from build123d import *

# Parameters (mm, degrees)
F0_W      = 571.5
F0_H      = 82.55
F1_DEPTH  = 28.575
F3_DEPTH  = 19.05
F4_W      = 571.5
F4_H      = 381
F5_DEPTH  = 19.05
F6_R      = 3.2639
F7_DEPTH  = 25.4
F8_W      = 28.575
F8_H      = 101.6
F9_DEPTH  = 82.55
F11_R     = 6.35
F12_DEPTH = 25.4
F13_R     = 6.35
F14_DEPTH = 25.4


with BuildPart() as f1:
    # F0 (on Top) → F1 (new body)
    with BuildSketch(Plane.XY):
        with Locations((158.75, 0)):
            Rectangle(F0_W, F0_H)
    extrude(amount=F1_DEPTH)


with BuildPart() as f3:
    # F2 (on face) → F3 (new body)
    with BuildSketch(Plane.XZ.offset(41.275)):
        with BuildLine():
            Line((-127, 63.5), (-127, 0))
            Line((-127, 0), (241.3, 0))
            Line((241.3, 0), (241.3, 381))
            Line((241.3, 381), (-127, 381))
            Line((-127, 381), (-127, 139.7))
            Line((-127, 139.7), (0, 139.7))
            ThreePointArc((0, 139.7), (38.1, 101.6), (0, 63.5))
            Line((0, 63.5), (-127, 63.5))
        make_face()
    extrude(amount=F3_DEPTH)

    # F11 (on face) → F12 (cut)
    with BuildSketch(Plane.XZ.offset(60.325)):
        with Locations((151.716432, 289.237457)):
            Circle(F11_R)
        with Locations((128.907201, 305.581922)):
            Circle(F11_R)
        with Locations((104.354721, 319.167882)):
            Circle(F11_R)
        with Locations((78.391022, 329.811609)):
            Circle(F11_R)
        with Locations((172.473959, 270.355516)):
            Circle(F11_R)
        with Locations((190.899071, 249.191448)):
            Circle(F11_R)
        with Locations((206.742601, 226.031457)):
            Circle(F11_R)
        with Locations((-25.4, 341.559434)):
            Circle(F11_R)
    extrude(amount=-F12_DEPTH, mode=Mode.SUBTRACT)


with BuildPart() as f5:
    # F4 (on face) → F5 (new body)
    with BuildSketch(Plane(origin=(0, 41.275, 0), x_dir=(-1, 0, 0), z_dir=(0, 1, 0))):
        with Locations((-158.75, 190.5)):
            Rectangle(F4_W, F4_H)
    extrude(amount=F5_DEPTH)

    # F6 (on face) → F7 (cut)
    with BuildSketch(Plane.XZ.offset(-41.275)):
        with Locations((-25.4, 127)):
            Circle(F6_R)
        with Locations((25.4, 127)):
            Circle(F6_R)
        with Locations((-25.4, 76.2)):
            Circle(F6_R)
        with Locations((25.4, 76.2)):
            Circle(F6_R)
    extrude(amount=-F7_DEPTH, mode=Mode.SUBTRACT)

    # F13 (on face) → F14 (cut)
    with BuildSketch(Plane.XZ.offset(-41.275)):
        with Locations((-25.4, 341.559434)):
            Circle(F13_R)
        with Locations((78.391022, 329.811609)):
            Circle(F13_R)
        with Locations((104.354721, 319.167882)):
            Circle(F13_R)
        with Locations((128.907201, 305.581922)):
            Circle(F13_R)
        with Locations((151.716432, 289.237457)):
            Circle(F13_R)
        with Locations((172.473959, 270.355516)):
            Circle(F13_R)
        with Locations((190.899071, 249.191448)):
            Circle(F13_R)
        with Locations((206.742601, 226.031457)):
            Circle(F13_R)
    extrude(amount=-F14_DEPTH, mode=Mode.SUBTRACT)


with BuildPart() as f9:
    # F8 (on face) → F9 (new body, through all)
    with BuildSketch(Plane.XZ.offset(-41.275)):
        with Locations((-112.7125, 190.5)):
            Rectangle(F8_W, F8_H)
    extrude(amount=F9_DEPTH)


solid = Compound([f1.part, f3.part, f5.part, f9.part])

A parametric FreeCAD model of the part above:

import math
import FreeCAD as App
import Part
import Sketcher

V = App.Vector
Q = App.Units.Quantity

doc = App.newDocument("Part")
params = doc.addObject("Spreadsheet::Sheet", "Params")
for row, (alias, value) in enumerate([
    ("sketch1_width", "22.5 in"),
    ("sketch1_height", "3.25 in"),
    ("pad1_length", "1.125 in"),
    ("sketch2_radius", "1.5 in"),
    ("sketch2_width", "5 in"),
    ("sketch2_height", "15 in"),
    ("sketch2_width2", "14.5 in"),
    ("sketch2_height2", "2.5 in"),
    ("pad2_length", "0.75 in"),
    ("sketch3_diameter", "0.5 in"),
    ("pocket1_length", "1 in"),
    ("sketch4_height", "15 in"),
    ("sketch4_width", "22.5 in"),
    ("pad3_length", "0.75 in"),
    ("sketch5_diameter", "0.257 in"),
    ("pocket2_length", "1 in"),
    ("sketch6_diameter", "0.5 in"),
    ("pocket3_length", "1 in"),
    ("sketch7_height", "4 in"),
    ("sketch7_width", "1.125 in"),
    ("pad4_length", "3.25 in"),
], start=1):
    params.set(f"A{row}", alias)
    params.set(f"B{row}", "=" + value)
    params.setAlias(f"B{row}", alias)

body = doc.addObject("PartDesign::Body", "Body")

# Sketch on XY plane
sketch1 = body.newObject("Sketcher::SketchObject", "Sketch")
sketch1.AttachmentSupport = (doc.getObject("XY_Plane"), [""])
sketch1.MapMode = "FlatFace"
sketch1.addGeometry([
    Part.LineSegment(V(-127, 41, 0), V(-127, -41, 0)),
    Part.LineSegment(V(-127, -41, 0), V(444, -41, 0)),
    Part.LineSegment(V(444, -41, 0), V(444, 41, 0)),
    Part.LineSegment(V(444, 41, 0), V(-127, 41, 0)),
], False)
sketch1.addConstraint([
    Sketcher.Constraint("Coincident", 0, 2, 1, 1),
    Sketcher.Constraint("Coincident", 1, 2, 2, 1),
    Sketcher.Constraint("Coincident", 2, 2, 3, 1),
    Sketcher.Constraint("Coincident", 3, 2, 0, 1),
    Sketcher.Constraint("Vertical", 0),
    Sketcher.Constraint("Horizontal", 1),
    Sketcher.Constraint("Vertical", 2),
    Sketcher.Constraint("Horizontal", 3),
    Sketcher.Constraint("DistanceX", 1, 1, 1, 2, Q("22.5 in")),
    Sketcher.Constraint("DistanceX", 0, 2, -1, 1, Q("5 in")),
    Sketcher.Constraint("DistanceY", 0, 2, 0, 1, Q("3.25 in")),
    Sketcher.Constraint("DistanceY", 0, 2, -1, 1, Q("1.625 in")),
])
sketch1.setExpression("Constraints[8]", "Params.sketch1_width")
sketch1.setExpression("Constraints[10]", "Params.sketch1_height")
pad1 = body.newObject("PartDesign::Pad", "Pad")
pad1.Profile = sketch1
pad1.setExpression("Length", "Params.pad1_length")
body2 = doc.addObject("PartDesign::Body", "Body001")

# Sketch on XZ plane
sketch2 = body2.newObject("Sketcher::SketchObject", "Sketch001")
sketch2.AttachmentSupport = (doc.getObject("XZ_Plane001"), [""])
sketch2.MapMode = "FlatFace"
sketch2.AttachmentOffset = App.Placement(V(0, 0, 1.625 * 25.4), App.Rotation())
sketch2.addGeometry([
    Part.LineSegment(V(-127, 64, 0), V(-127, 0, 0)),  # 0
    Part.LineSegment(V(-127, 0, 0), V(241, 0, 0)),  # 1
    Part.LineSegment(V(241, 0, 0), V(241, 381, 0)),  # 2
    Part.LineSegment(V(241, 381, 0), V(-127, 381, 0)),  # 3
    Part.LineSegment(V(-127, 381, 0), V(-127, 140, 0)),  # 4
    Part.LineSegment(V(-127, 140, 0), V(0, 140, 0)),  # 5
    Part.ArcOfCircle(Part.Circle(V(0, 102, 0), V(0, 0, 1), 38), math.radians(-90), math.radians(90)),  # 6
    Part.LineSegment(V(0, 64, 0), V(-127, 64, 0)),  # 7
], False)
sketch2.addConstraint([
    Sketcher.Constraint("Coincident", 0, 2, 1, 1),
    Sketcher.Constraint("Coincident", 1, 2, 2, 1),
    Sketcher.Constraint("Coincident", 2, 2, 3, 1),
    Sketcher.Constraint("Coincident", 3, 2, 4, 1),
    Sketcher.Constraint("Coincident", 4, 2, 5, 1),
    Sketcher.Constraint("Tangent", 5, 2, 6, 2),
    Sketcher.Constraint("Tangent", 6, 1, 7, 1),
    Sketcher.Constraint("Coincident", 7, 2, 0, 1),
    Sketcher.Constraint("Vertical", 0),
    Sketcher.Constraint("Horizontal", 1),
    Sketcher.Constraint("Vertical", 2),
    Sketcher.Constraint("Horizontal", 3),
    Sketcher.Constraint("Vertical", 4),
    Sketcher.Constraint("Horizontal", 5),
    Sketcher.Constraint("Horizontal", 7),
    Sketcher.Constraint("PointOnObject", 6, 3, -2),
    Sketcher.Constraint("PointOnObject", 0, 2, -1),
    Sketcher.Constraint("Vertical", 0, 2, 3, 2),
    Sketcher.Constraint("Radius", 6, Q("1.5 in")),
    Sketcher.Constraint("DistanceX", 5, 1, 5, 2, Q("5 in")),
    Sketcher.Constraint("DistanceY", 2, 1, 2, 2, Q("15 in")),
    Sketcher.Constraint("DistanceX", 1, 1, 1, 2, Q("14.5 in")),
    Sketcher.Constraint("DistanceY", 0, 2, 0, 1, Q("2.5 in")),
])
sketch2.setExpression("Constraints[18]", "Params.sketch2_radius")
sketch2.setExpression("Constraints[19]", "Params.sketch2_width")
sketch2.setExpression("Constraints[20]", "Params.sketch2_height")
sketch2.setExpression("Constraints[21]", "Params.sketch2_width2")
sketch2.setExpression("Constraints[22]", "Params.sketch2_height2")
pad2 = body2.newObject("PartDesign::Pad", "Pad001")
pad2.Profile = sketch2
pad2.setExpression("Length", "Params.pad2_length")

# Sketch on XZ plane
sketch3 = body2.newObject("Sketcher::SketchObject", "Sketch002")
sketch3.AttachmentSupport = (doc.getObject("XZ_Plane001"), [""])
sketch3.MapMode = "FlatFace"
sketch3.AttachmentOffset = App.Placement(V(0, 0, 2.375 * 25.4), App.Rotation())
sketch3.addGeometry([
    Part.Circle(V(152, 289, 0), V(0, 0, 1), 6),  # 0
    Part.Circle(V(129, 306, 0), V(0, 0, 1), 6),  # 1
    Part.Circle(V(104, 319, 0), V(0, 0, 1), 6),  # 2
    Part.Circle(V(78, 330, 0), V(0, 0, 1), 6),  # 3
    Part.Circle(V(172, 270, 0), V(0, 0, 1), 6),  # 4
    Part.Circle(V(191, 249, 0), V(0, 0, 1), 6),  # 5
    Part.Circle(V(207, 226, 0), V(0, 0, 1), 6),  # 6
    Part.Circle(V(-25, 342, 0), V(0, 0, 1), 6),  # 7
], False)
sketch3.addConstraint([
    Sketcher.Constraint("Equal", 0, 1),
    Sketcher.Constraint("Equal", 1, 2),
    Sketcher.Constraint("Equal", 2, 3),
    Sketcher.Constraint("Equal", 3, 4),
    Sketcher.Constraint("Equal", 4, 5),
    Sketcher.Constraint("Equal", 5, 6),
    Sketcher.Constraint("Equal", 6, 7),
    Sketcher.Constraint("Diameter", 0, Q("0.5 in")),
    Sketcher.Constraint("DistanceX", 7, 3, -1, 1, Q("1 in")),
    Sketcher.Constraint("DistanceX", -1, 1, 1, 3, Q("128.907201 mm")),
    Sketcher.Constraint("DistanceX", -1, 1, 6, 3, Q("206.742601 mm")),
    Sketcher.Constraint("DistanceX", 3, 3, 2, 3, Q("25.963699 mm")),
    Sketcher.Constraint("DistanceY", 6, 3, 0, 3, Q("63.206 mm")),
    Sketcher.Constraint("DistanceX", -1, 1, 0, 3, Q("151.716432 mm")),
    Sketcher.Constraint("DistanceY", -1, 1, 1, 3, Q("305.581922 mm")),
    Sketcher.Constraint("DistanceX", -1, 1, 2, 3, Q("104.354721 mm")),
    Sketcher.Constraint("DistanceY", -1, 1, 2, 3, Q("319.167882 mm")),
    Sketcher.Constraint("DistanceY", -1, 1, 3, 3, Q("329.811609 mm")),
    Sketcher.Constraint("DistanceX", -1, 1, 4, 3, Q("172.473959 mm")),
    Sketcher.Constraint("DistanceX", -1, 1, 5, 3, Q("190.899071 mm")),
    Sketcher.Constraint("DistanceY", -1, 1, 5, 3, Q("249.191448 mm")),
    Sketcher.Constraint("DistanceY", 0, 3, 3, 3, Q("40.574152 mm")),
    Sketcher.Constraint("DistanceY", 4, 3, 0, 3, Q("18.881941 mm")),
    Sketcher.Constraint("DistanceY", 2, 3, 7, 3, Q("22.391552 mm")),
])
sketch3.setExpression("Constraints[7]", "Params.sketch3_diameter")
pocket1 = body2.newObject("PartDesign::Pocket", "Pocket")
pocket1.Profile = sketch3
pocket1.setExpression("Length", "Params.pocket1_length")
body3 = doc.addObject("PartDesign::Body", "Body002")

# Sketch on XZ plane
sketch4 = body3.newObject("Sketcher::SketchObject", "Sketch003")
sketch4.AttachmentSupport = (doc.getObject("XZ_Plane002"), [""])
sketch4.MapMode = "FlatFace"
sketch4.AttachmentOffset = App.Placement(V(0, 0, -1.625 * 25.4), App.Rotation())
sketch4.addGeometry([
    Part.LineSegment(V(444, 381, 0), V(444, 0, 0)),
    Part.LineSegment(V(444, 0, 0), V(-127, 0, 0)),
    Part.LineSegment(V(-127, 0, 0), V(-127, 381, 0)),
    Part.LineSegment(V(-127, 381, 0), V(444, 381, 0)),
], False)
sketch4.addConstraint([
    Sketcher.Constraint("Coincident", 0, 2, 1, 1),
    Sketcher.Constraint("Coincident", 1, 2, 2, 1),
    Sketcher.Constraint("Coincident", 2, 2, 3, 1),
    Sketcher.Constraint("Coincident", 3, 2, 0, 1),
    Sketcher.Constraint("Vertical", 0),
    Sketcher.Constraint("Horizontal", 1),
    Sketcher.Constraint("Vertical", 2),
    Sketcher.Constraint("Horizontal", 3),
    Sketcher.Constraint("PointOnObject", 0, 2, -1),
    Sketcher.Constraint("DistanceY", 0, 2, 0, 1, Q("15 in")),
    Sketcher.Constraint("DistanceX", 1, 2, 1, 1, Q("22.5 in")),
    Sketcher.Constraint("DistanceX", 1, 2, -1, 1, Q("5 in")),
])
sketch4.setExpression("Constraints[9]", "Params.sketch4_height")
sketch4.setExpression("Constraints[10]", "Params.sketch4_width")
pad3 = body3.newObject("PartDesign::Pad", "Pad002")
pad3.Profile = sketch4
pad3.setExpression("Length", "Params.pad3_length")
pad3.Reversed = True

# Sketch on XZ plane
sketch5 = body3.newObject("Sketcher::SketchObject", "Sketch004")
sketch5.AttachmentSupport = (doc.getObject("XZ_Plane002"), [""])
sketch5.MapMode = "FlatFace"
sketch5.AttachmentOffset = App.Placement(V(0, 0, -1.625 * 25.4), App.Rotation())
sketch5.addGeometry([
    Part.Circle(V(-25.4, 127, 0), V(0, 0, 1), 3.3),
    Part.Circle(V(25.4, 127, 0), V(0, 0, 1), 3.3),
    Part.Circle(V(-25.4, 76.2, 0), V(0, 0, 1), 3.3),
    Part.Circle(V(25.4, 76.2, 0), V(0, 0, 1), 3.3),
], False)
sketch5.addConstraint([
    Sketcher.Constraint("Equal", 0, 1),
    Sketcher.Constraint("Equal", 1, 2),
    Sketcher.Constraint("Equal", 2, 3),
    Sketcher.Constraint("Symmetric", 0, 3, 1, 3, -2),
    Sketcher.Constraint("Symmetric", 2, 3, 3, 3, -2),
    Sketcher.Constraint("Vertical", 0, 3, 2, 3),
    Sketcher.Constraint("Diameter", 0, Q("0.257 in")),
    Sketcher.Constraint("DistanceX", 0, 3, -1, 1, Q("1 in")),
    Sketcher.Constraint("DistanceY", -1, 1, 0, 3, Q("5 in")),
    Sketcher.Constraint("DistanceY", -1, 1, 2, 3, Q("3 in")),
])
sketch5.setExpression("Constraints[6]", "Params.sketch5_diameter")
pocket2 = body3.newObject("PartDesign::Pocket", "Pocket001")
pocket2.Profile = sketch5
pocket2.setExpression("Length", "Params.pocket2_length")

# Sketch on XZ plane
sketch6 = body3.newObject("Sketcher::SketchObject", "Sketch005")
sketch6.AttachmentSupport = (doc.getObject("XZ_Plane002"), [""])
sketch6.MapMode = "FlatFace"
sketch6.AttachmentOffset = App.Placement(V(0, 0, -1.625 * 25.4), App.Rotation())
sketch6.addGeometry([
    Part.Circle(V(-25, 342, 0), V(0, 0, 1), 6),  # 0
    Part.Circle(V(78, 330, 0), V(0, 0, 1), 6),  # 1
    Part.Circle(V(104, 319, 0), V(0, 0, 1), 6),  # 2
    Part.Circle(V(129, 306, 0), V(0, 0, 1), 6),  # 3
    Part.Circle(V(152, 289, 0), V(0, 0, 1), 6),  # 4
    Part.Circle(V(172, 270, 0), V(0, 0, 1), 6),  # 5
    Part.Circle(V(191, 249, 0), V(0, 0, 1), 6),  # 6
    Part.Circle(V(207, 226, 0), V(0, 0, 1), 6),  # 7
], False)
sketch6.addConstraint([
    Sketcher.Constraint("Equal", 0, 1),
    Sketcher.Constraint("Equal", 1, 2),
    Sketcher.Constraint("Equal", 2, 3),
    Sketcher.Constraint("Equal", 3, 4),
    Sketcher.Constraint("Equal", 4, 5),
    Sketcher.Constraint("Equal", 5, 6),
    Sketcher.Constraint("Equal", 6, 7),
    Sketcher.Constraint("Diameter", 0, Q("0.5 in")),
    Sketcher.Constraint("DistanceX", 0, 3, -1, 1, Q("1 in")),
    Sketcher.Constraint("DistanceX", -1, 1, 3, 3, Q("128.907201 mm")),
    Sketcher.Constraint("DistanceX", -1, 1, 7, 3, Q("206.742601 mm")),
    Sketcher.Constraint("DistanceX", 1, 3, 2, 3, Q("25.963699 mm")),
    Sketcher.Constraint("DistanceY", 7, 3, 4, 3, Q("63.206 mm")),
    Sketcher.Constraint("DistanceY", -1, 1, 1, 3, Q("329.811609 mm")),
    Sketcher.Constraint("DistanceX", -1, 1, 2, 3, Q("104.354721 mm")),
    Sketcher.Constraint("DistanceY", -1, 1, 2, 3, Q("319.167882 mm")),
    Sketcher.Constraint("DistanceY", -1, 1, 3, 3, Q("305.581922 mm")),
    Sketcher.Constraint("DistanceX", -1, 1, 4, 3, Q("151.716432 mm")),
    Sketcher.Constraint("DistanceX", -1, 1, 5, 3, Q("172.473959 mm")),
    Sketcher.Constraint("DistanceX", -1, 1, 6, 3, Q("190.899071 mm")),
    Sketcher.Constraint("DistanceY", -1, 1, 6, 3, Q("249.191448 mm")),
    Sketcher.Constraint("DistanceY", 2, 3, 0, 3, Q("22.391552 mm")),
    Sketcher.Constraint("DistanceY", 4, 3, 1, 3, Q("40.574152 mm")),
    Sketcher.Constraint("DistanceY", 5, 3, 4, 3, Q("18.881941 mm")),
])
sketch6.setExpression("Constraints[7]", "Params.sketch6_diameter")
pocket3 = body3.newObject("PartDesign::Pocket", "Pocket002")
pocket3.Profile = sketch6
pocket3.setExpression("Length", "Params.pocket3_length")
body4 = doc.addObject("PartDesign::Body", "Body003")

# Sketch on XZ plane
sketch7 = body4.newObject("Sketcher::SketchObject", "Sketch006")
sketch7.AttachmentSupport = (doc.getObject("XZ_Plane003"), [""])
sketch7.MapMode = "FlatFace"
sketch7.AttachmentOffset = App.Placement(V(0, 0, -1.625 * 25.4), App.Rotation())
sketch7.addGeometry([
    Part.LineSegment(V(-127, 241, 0), V(-127, 140, 0)),
    Part.LineSegment(V(-127, 140, 0), V(-98, 140, 0)),
    Part.LineSegment(V(-98, 140, 0), V(-98, 241, 0)),
    Part.LineSegment(V(-98, 241, 0), V(-127, 241, 0)),
], False)
sketch7.addConstraint([
    Sketcher.Constraint("Coincident", 0, 2, 1, 1),
    Sketcher.Constraint("Coincident", 1, 2, 2, 1),
    Sketcher.Constraint("Coincident", 2, 2, 3, 1),
    Sketcher.Constraint("Coincident", 3, 2, 0, 1),
    Sketcher.Constraint("Vertical", 0),
    Sketcher.Constraint("Horizontal", 1),
    Sketcher.Constraint("Vertical", 2),
    Sketcher.Constraint("Horizontal", 3),
    Sketcher.Constraint("DistanceY", 0, 2, 0, 1, Q("4 in")),
    Sketcher.Constraint("DistanceX", 0, 2, -1, 1, Q("5 in")),
    Sketcher.Constraint("DistanceY", -1, 1, 0, 2, Q("5.5 in")),
    Sketcher.Constraint("DistanceX", 1, 1, 1, 2, Q("1.125 in")),
])
sketch7.setExpression("Constraints[8]", "Params.sketch7_height")
sketch7.setExpression("Constraints[11]", "Params.sketch7_width")
pad4 = body4.newObject("PartDesign::Pad", "Pad003")
pad4.Profile = sketch7
pad4.setExpression("Length", "Params.pad4_length")

doc.recompute()
